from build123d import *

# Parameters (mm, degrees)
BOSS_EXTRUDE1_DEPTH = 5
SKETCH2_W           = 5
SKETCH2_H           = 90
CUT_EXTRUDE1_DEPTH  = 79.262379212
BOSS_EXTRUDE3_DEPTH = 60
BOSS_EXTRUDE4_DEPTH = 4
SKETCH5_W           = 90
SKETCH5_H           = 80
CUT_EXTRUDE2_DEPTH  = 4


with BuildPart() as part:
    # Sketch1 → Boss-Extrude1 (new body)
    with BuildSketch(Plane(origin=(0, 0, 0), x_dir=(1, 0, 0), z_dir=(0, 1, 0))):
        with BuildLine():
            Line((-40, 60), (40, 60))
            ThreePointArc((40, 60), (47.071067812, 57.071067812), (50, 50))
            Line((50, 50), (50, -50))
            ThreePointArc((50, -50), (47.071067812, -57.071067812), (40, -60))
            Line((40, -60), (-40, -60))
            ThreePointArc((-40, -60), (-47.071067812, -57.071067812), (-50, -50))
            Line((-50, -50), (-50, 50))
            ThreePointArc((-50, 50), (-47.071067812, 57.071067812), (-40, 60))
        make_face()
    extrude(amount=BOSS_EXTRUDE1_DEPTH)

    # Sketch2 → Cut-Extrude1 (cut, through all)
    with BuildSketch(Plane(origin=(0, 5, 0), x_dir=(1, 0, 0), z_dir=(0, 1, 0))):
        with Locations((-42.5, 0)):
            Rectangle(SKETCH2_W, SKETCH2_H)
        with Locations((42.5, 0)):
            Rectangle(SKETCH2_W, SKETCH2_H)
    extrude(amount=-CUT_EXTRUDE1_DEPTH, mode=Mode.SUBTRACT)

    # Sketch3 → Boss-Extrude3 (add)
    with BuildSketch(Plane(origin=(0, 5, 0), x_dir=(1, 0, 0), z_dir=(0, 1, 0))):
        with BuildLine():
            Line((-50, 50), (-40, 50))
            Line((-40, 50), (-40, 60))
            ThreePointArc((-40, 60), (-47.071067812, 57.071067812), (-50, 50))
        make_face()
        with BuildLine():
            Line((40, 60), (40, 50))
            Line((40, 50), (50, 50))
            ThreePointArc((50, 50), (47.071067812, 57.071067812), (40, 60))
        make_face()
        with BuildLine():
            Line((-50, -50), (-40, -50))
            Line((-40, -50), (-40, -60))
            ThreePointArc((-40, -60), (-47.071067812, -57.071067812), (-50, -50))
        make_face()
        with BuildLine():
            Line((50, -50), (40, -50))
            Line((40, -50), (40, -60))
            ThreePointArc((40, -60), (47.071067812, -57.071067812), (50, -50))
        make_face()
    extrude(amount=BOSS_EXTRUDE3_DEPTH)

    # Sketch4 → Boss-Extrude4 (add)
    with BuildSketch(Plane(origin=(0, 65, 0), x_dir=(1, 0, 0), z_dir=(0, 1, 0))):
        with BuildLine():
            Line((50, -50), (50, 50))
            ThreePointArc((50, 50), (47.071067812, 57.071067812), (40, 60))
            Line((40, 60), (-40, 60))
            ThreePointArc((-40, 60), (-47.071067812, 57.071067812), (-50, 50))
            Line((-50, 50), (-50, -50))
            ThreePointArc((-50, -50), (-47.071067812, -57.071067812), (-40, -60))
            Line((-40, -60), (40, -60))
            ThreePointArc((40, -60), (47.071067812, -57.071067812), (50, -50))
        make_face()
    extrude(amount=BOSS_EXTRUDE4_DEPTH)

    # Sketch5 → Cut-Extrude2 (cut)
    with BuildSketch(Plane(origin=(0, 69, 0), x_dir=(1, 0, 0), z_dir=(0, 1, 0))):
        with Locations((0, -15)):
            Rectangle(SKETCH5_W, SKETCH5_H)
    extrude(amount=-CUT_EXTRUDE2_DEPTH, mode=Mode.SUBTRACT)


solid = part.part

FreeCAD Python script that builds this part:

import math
import FreeCAD as App
import Part
import Sketcher
from FreeCAD import Vector

doc = App.newDocument("Part")
body = doc.addObject("PartDesign::Body", "Body")

# Sketch on XZ plane
sketch1 = body.newObject("Sketcher::SketchObject", "Sketch")
sketch1.AttachmentSupport = (doc.getObject("XZ_Plane"), [""])
sketch1.MapMode = "FlatFace"
sketch1.addGeometry([
    Part.LineSegment(Vector(40, -60, 0), Vector(-40, -60, 0)),  # 0
    Part.ArcOfCircle(Part.Circle(Vector(-40, -50, 0), Vector(0, 0, 1), 10), math.radians(180), math.radians(270)),  # 1
    Part.LineSegment(Vector(-50, -50, 0), Vector(-50, 50, 0)),  # 2
    Part.ArcOfCircle(Part.Circle(Vector(-40, 50, 0), Vector(0, 0, 1), 10), math.radians(90), math.radians(180)),  # 3
    Part.LineSegment(Vector(-40, 60, 0), Vector(40, 60, 0)),  # 4
    Part.ArcOfCircle(Part.Circle(Vector(40, 50, 0), Vector(0, 0, 1), 10), math.radians(0), math.radians(90)),  # 5
    Part.LineSegment(Vector(50, 50, 0), Vector(50, -50, 0)),  # 6
    Part.ArcOfCircle(Part.Circle(Vector(40, -50, 0), Vector(0, 0, 1), 10), math.radians(-90), math.radians(0)),  # 7
], False)
sketch1.addConstraint([
    Sketcher.Constraint("Tangent", 0, 2, 1, 2),
    Sketcher.Constraint("Tangent", 1, 1, 2, 1),
    Sketcher.Constraint("Tangent", 2, 2, 3, 2),
    Sketcher.Constraint("Tangent", 3, 1, 4, 1),
    Sketcher.Constraint("Tangent", 4, 2, 5, 2),
    Sketcher.Constraint("Tangent", 5, 1, 6, 1),
    Sketcher.Constraint("Tangent", 6, 2, 7, 2),
    Sketcher.Constraint("Tangent", 7, 1, 0, 1),
    Sketcher.Constraint("Horizontal", 0),
    Sketcher.Constraint("Vertical", 2),
    Sketcher.Constraint("Horizontal", 4),
    Sketcher.Constraint("Vertical", 6),
    Sketcher.Constraint("Equal", 1, 3),
    Sketcher.Constraint("Equal", 3, 5),
    Sketcher.Constraint("Equal", 5, 7),
    Sketcher.Constraint("Symmetric", 1, 3, 5, 3, -1, 1),
    Sketcher.Constraint("Radius", 1, 10.0),
    Sketcher.Constraint("DistanceX", 0, 2, 0, 1, 80.0),
    Sketcher.Constraint("DistanceY", 2, 1, 2, 2, 100.0),
])
pad1 = body.newObject("PartDesign::Pad", "Pad")
pad1.Profile = sketch1
pad1.Length = 5
pad1.Reversed = True

# Sketch on XZ plane
sketch2 = body.newObject("Sketcher::SketchObject", "Sketch001")
sketch2.AttachmentSupport = (doc.getObject("XZ_Plane"), [""])
sketch2.MapMode = "FlatFace"
sketch2.AttachmentOffset = App.Placement(Vector(0, 0, -5), App.Rotation())
sketch2.addGeometry([
    Part.LineSegment(Vector(-45, -45, 0), Vector(-45, 45, 0)),  # 0
    Part.LineSegment(Vector(-45, 45, 0), Vector(-40, 45, 0)),  # 1
    Part.LineSegment(Vector(-40, 45, 0), Vector(-40, -45, 0)),  # 2
    Part.LineSegment(Vector(-40, -45, 0), Vector(-45, -45, 0)),  # 3
    Part.LineSegment(Vector(40, -45, 0), Vector(40, 45, 0)),  # 4
    Part.LineSegment(Vector(40, 45, 0), Vector(45, 45, 0)),  # 5
    Part.LineSegment(Vector(45, 45, 0), Vector(45, -45, 0)),  # 6
    Part.LineSegment(Vector(45, -45, 0), Vector(40, -45, 0)),  # 7
], False)
sketch2.addConstraint([
    Sketcher.Constraint("Coincident", 0, 2, 1, 1),
    Sketcher.Constraint("Coincident", 1, 2, 2, 1),
    Sketcher.Constraint("Coincident", 2, 2, 3, 1),
    Sketcher.Constraint("Coincident", 3, 2, 0, 1),
    Sketcher.Constraint("Coincident", 4, 2, 5, 1),
    Sketcher.Constraint("Coincident", 5, 2, 6, 1),
    Sketcher.Constraint("Coincident", 6, 2, 7, 1),
    Sketcher.Constraint("Coincident", 7, 2, 4, 1),
    Sketcher.Constraint("Vertical", 0),
    Sketcher.Constraint("Horizontal", 1),
    Sketcher.Constraint("Vertical", 2),
    Sketcher.Constraint("Horizontal", 3),
    Sketcher.Constraint("Vertical", 4),
    Sketcher.Constraint("Horizontal", 5),
    Sketcher.Constraint("Vertical", 6),
    Sketcher.Constraint("Horizontal", 7),
    Sketcher.Constraint("Symmetric", 2, 2, 4, 2, -1, 1),
    Sketcher.Constraint("Symmetric", 0, 2, 6, 2, -1, 1),
    Sketcher.Constraint("Horizontal", 1, 2, 4, 2),
    Sketcher.Constraint("DistanceX", 1, 1, 1, 2, 5.0),
    Sketcher.Constraint("DistanceY", 0, 1, 0, 2, 90.0),
    Sketcher.Constraint("DistanceX", 0, 2, -1, 1, 45.0),
])
pocket1 = body.newObject("PartDesign::Pocket", "Pocket")
pocket1.Profile = sketch2
pocket1.Type = "ThroughAll"
pocket1.Reversed = True

# Sketch on XZ plane
sketch3 = body.newObject("Sketcher::SketchObject", "Sketch002")
sketch3.AttachmentSupport = (doc.getObject("XZ_Plane"), [""])
sketch3.MapMode = "FlatFace"
sketch3.AttachmentOffset = App.Placement(Vector(0, 0, -5), App.Rotation())
sketch3.addGeometry([
    Part.LineSegment(Vector(-50, -50, 0), Vector(-40, -50, 0)),  # 0
    Part.LineSegment(Vector(-40, -50, 0), Vector(-40, -60, 0)),  # 1
    Part.ArcOfCircle(Part.Circle(Vector(-40, -50, 0), Vector(0, 0, 1), 10), math.radians(180), math.radians(270)),  # 2
    Part.LineSegment(Vector(40, -60, 0), Vector(40, -50, 0)),  # 3
    Part.LineSegment(Vector(40, -50, 0), Vector(50, -50, 0)),  # 4
    Part.ArcOfCircle(Part.Circle(Vector(40, -50, 0), Vector(0, 0, 1), 10), math.radians(-90), math.radians(0)),  # 5
    Part.LineSegment(Vector(-40, 50, 0), Vector(-50, 50, 0)),  # 6
    Part.ArcOfCircle(Part.Circle(Vector(-40, 50, 0), Vector(0, 0, 1), 10), math.radians(90), math.radians(180)),  # 7
    Part.LineSegment(Vector(-40, 60, 0), Vector(-40, 50, 0)),  # 8
    Part.LineSegment(Vector(50, 50, 0), Vector(40, 50, 0)),  # 9
    Part.LineSegment(Vector(40, 50, 0), Vector(40, 60, 0)),  # 10
    Part.ArcOfCircle(Part.Circle(Vector(40, 50, 0), Vector(0, 0, 1), 10), math.radians(0), math.radians(90)),  # 11
], False)
sketch3.addConstraint([
    Sketcher.Constraint("Coincident", 0, 2, 1, 1),
    Sketcher.Constraint("Coincident", 1, 2, 2, 2),
    Sketcher.Constraint("Coincident", 2, 1, 0, 1),
    Sketcher.Constraint("Coincident", 3, 2, 4, 1),
    Sketcher.Constraint("Coincident", 4, 2, 5, 2),
    Sketcher.Constraint("Coincident", 5, 1, 3, 1),
    Sketcher.Constraint("Coincident", 6, 2, 7, 2),
    Sketcher.Constraint("Coincident", 7, 1, 8, 1),
    Sketcher.Constraint("Coincident", 8, 2, 6, 1),
    Sketcher.Constraint("Coincident", 9, 2, 10, 1),
    Sketcher.Constraint("Coincident", 10, 2, 11, 2),
    Sketcher.Constraint("Coincident", 11, 1, 9, 1),
    Sketcher.Constraint("Horizontal", 0),
    Sketcher.Constraint("Vertical", 1),
    Sketcher.Constraint("Vertical", 3),
    Sketcher.Constraint("Horizontal", 4),
    Sketcher.Constraint("Horizontal", 6),
    Sketcher.Constraint("Vertical", 8),
    Sketcher.Constraint("Horizontal", 9),
    Sketcher.Constraint("Vertical", 10),
    Sketcher.Constraint("Coincident", 0, 2, 2, 3),
    Sketcher.Constraint("Coincident", 3, 2, 5, 3),
    Sketcher.Constraint("Coincident", 8, 2, 7, 3),
    Sketcher.Constraint("Coincident", 9, 2, 11, 3),
    Sketcher.Constraint("Equal", 2, 5),
    Sketcher.Constraint("Equal", 5, 7),
    Sketcher.Constraint("Equal", 7, 11),
    Sketcher.Constraint("Symmetric", 5, 3, 7, 3, -1, 1),
    Sketcher.Constraint("Symmetric", 2, 3, 11, 3, -1, 1),
    Sketcher.Constraint("Symmetric", 2, 3, 5, 3, -2),
    Sketcher.Constraint("Radius", 2, 10.0),
    Sketcher.Constraint("DistanceX", 2, 3, -1, 1, 40.0),
    Sketcher.Constraint("DistanceY", 2, 3, -1, 1, 50.0),
])
pad2 = body.newObject("PartDesign::Pad", "Pad001")
pad2.Profile = sketch3
pad2.Length = 60
pad2.Reversed = True

# Sketch on XZ plane
sketch4 = body.newObject("Sketcher::SketchObject", "Sketch003")
sketch4.AttachmentSupport = (doc.getObject("XZ_Plane"), [""])
sketch4.MapMode = "FlatFace"
sketch4.AttachmentOffset = App.Placement(Vector(0, 0, -65), App.Rotation())
sketch4.addGeometry([
    Part.LineSegment(Vector(50, 50, 0), Vector(50, -50, 0)),  # 0
    Part.ArcOfCircle(Part.Circle(Vector(40, -50, 0), Vector(0, 0, 1), 10), math.radians(-90), math.radians(0)),  # 1
    Part.LineSegment(Vector(40, -60, 0), Vector(-40, -60, 0)),  # 2
    Part.ArcOfCircle(Part.Circle(Vector(-40, -50, 0), Vector(0, 0, 1), 10), math.radians(180), math.radians(270)),  # 3
    Part.LineSegment(Vector(-50, -50, 0), Vector(-50, 50, 0)),  # 4
    Part.ArcOfCircle(Part.Circle(Vector(-40, 50, 0), Vector(0, 0, 1), 10), math.radians(90), math.radians(180)),  # 5
    Part.LineSegment(Vector(-40, 60, 0), Vector(40, 60, 0)),  # 6
    Part.ArcOfCircle(Part.Circle(Vector(40, 50, 0), Vector(0, 0, 1), 10), math.radians(0), math.radians(90)),  # 7
], False)
sketch4.addConstraint([
    Sketcher.Constraint("Tangent", 0, 2, 1, 2),
    Sketcher.Constraint("Tangent", 1, 1, 2, 1),
    Sketcher.Constraint("Tangent", 2, 2, 3, 2),
    Sketcher.Constraint("Tangent", 3, 1, 4, 1),
    Sketcher.Constraint("Tangent", 4, 2, 5, 2),
    Sketcher.Constraint("Tangent", 5, 1, 6, 1),
    Sketcher.Constraint("Tangent", 6, 2, 7, 2),
    Sketcher.Constraint("Tangent", 7, 1, 0, 1),
    Sketcher.Constraint("Vertical", 0),
    Sketcher.Constraint("Horizontal", 2),
    Sketcher.Constraint("Vertical", 4),
    Sketcher.Constraint("Horizontal", 6),
    Sketcher.Constraint("Equal", 1, 3),
    Sketcher.Constraint("Equal", 3, 5),
    Sketcher.Constraint("Equal", 5, 7),
    Sketcher.Constraint("Symmetric", 1, 3, 5, 3, -1, 1),
    Sketcher.Constraint("Radius", 1, 10.0),
    Sketcher.Constraint("DistanceX", 2, 2, 2, 1, 80.0),
    Sketcher.Constraint("DistanceY", 0, 2, 0, 1, 100.0),
])
pad3 = body.newObject("PartDesign::Pad", "Pad002")
pad3.Profile = sketch4
pad3.Length = 4
pad3.Reversed = True

# Sketch on XZ plane
sketch5 = body.newObject("Sketcher::SketchObject", "Sketch004")
sketch5.AttachmentSupport = (doc.getObject("XZ_Plane"), [""])
sketch5.MapMode = "FlatFace"
sketch5.AttachmentOffset = App.Placement(Vector(0, 0, -69), App.Rotation())
sketch5.addGeometry([
    Part.LineSegment(Vector(-45, -25, 0), Vector(-45, 55, 0)),
    Part.LineSegment(Vector(-45, 55, 0), Vector(45, 55, 0)),
    Part.LineSegment(Vector(45, 55, 0), Vector(45, -25, 0)),
    Part.LineSegment(Vector(45, -25, 0), Vector(-45, -25, 0)),
], False)
sketch5.addConstraint([
    Sketcher.Constraint("Coincident", 0, 2, 1, 1),
    Sketcher.Constraint("Coincident", 1, 2, 2, 1),
    Sketcher.Constraint("Coincident", 2, 2, 3, 1),
    Sketcher.Constraint("Coincident", 3, 2, 0, 1),
    Sketcher.Constraint("Vertical", 0),
    Sketcher.Constraint("Horizontal", 1),
    Sketcher.Constraint("Vertical", 2),
    Sketcher.Constraint("Horizontal", 3),
    Sketcher.Constraint("DistanceX", 1, 1, 1, 2, 90.0),
    Sketcher.Constraint("DistanceY", 0, 1, 0, 2, 80.0),
    Sketcher.Constraint("DistanceX", 0, 2, -1, 1, 45.0),
    Sketcher.Constraint("DistanceY", -1, 1, 0, 2, 55.0),
])
pocket2 = body.newObject("PartDesign::Pocket", "Pocket001")
pocket2.Profile = sketch5
pocket2.Length = 4
pocket2.Reversed = True

doc.recompute()
